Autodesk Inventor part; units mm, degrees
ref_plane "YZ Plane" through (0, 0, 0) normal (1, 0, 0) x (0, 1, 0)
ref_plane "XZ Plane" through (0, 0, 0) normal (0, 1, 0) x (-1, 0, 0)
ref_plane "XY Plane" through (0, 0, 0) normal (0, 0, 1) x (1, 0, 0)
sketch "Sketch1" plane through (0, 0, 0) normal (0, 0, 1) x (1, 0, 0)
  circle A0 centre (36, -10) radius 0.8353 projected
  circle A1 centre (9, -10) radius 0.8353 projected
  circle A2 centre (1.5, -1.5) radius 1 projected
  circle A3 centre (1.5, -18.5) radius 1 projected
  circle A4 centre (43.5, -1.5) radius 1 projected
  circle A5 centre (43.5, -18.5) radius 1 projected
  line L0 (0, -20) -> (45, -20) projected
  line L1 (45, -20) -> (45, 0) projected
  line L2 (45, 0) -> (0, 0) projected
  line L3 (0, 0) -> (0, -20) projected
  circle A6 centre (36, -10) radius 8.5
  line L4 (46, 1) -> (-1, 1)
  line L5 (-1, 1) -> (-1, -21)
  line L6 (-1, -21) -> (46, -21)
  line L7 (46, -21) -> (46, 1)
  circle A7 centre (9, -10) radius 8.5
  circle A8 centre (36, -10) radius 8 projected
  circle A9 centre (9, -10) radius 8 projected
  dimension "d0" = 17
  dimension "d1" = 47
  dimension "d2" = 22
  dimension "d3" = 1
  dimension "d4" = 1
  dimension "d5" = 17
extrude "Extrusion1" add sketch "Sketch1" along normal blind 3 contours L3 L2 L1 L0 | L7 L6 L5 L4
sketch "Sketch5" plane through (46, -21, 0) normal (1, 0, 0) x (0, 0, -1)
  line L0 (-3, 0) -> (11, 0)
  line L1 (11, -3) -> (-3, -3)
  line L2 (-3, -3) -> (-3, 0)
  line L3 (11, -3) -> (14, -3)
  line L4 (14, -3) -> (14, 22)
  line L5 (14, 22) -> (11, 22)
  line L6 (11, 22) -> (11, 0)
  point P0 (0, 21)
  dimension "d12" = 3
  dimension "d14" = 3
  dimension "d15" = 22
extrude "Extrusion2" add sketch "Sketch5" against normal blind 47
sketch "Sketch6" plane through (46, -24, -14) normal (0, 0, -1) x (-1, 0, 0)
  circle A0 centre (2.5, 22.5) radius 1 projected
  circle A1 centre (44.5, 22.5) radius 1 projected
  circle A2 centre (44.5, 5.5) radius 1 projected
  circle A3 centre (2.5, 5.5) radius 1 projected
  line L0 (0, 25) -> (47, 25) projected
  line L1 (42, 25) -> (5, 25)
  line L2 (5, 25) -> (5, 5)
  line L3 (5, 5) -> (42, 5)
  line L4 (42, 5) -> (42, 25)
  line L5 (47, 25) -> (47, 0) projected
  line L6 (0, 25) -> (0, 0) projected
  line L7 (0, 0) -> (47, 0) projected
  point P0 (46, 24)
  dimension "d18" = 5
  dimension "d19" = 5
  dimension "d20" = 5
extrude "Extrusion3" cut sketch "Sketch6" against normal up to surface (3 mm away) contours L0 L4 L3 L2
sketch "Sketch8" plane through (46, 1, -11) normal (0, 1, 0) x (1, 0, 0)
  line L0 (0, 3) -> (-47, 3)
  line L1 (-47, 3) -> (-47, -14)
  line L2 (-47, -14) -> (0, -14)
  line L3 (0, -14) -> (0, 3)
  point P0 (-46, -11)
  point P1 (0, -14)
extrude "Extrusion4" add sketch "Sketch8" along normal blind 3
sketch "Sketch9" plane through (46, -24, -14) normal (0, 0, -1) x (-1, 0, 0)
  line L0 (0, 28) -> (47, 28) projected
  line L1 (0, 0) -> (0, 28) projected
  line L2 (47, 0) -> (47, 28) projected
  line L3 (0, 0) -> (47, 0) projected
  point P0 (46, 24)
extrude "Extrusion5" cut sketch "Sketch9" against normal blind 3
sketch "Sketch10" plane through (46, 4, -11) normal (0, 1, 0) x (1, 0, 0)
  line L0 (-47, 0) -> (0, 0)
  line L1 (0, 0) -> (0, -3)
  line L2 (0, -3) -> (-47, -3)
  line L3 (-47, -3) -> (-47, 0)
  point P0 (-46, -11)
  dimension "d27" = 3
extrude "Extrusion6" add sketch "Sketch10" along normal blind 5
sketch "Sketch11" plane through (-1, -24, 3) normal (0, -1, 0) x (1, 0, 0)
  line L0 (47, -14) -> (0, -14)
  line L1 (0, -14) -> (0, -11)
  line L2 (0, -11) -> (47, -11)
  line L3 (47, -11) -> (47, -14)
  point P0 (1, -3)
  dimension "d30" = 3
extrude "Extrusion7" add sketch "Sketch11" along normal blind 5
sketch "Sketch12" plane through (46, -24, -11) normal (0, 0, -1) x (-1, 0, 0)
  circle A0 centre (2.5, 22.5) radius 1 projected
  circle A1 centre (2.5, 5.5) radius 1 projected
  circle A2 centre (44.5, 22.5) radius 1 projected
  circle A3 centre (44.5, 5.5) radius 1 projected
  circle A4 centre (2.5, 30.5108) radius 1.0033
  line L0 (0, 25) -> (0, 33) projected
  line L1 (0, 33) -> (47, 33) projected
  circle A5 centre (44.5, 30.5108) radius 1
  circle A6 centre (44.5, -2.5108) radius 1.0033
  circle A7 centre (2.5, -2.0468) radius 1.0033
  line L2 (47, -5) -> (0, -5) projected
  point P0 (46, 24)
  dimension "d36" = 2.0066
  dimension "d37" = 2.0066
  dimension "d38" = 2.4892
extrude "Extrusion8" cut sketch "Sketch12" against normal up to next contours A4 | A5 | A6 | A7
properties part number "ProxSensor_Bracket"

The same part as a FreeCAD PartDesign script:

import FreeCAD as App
import Part
import Sketcher

V = App.Vector


def add_polygon(sketch, points):
    """Adds a closed chain of lines whose ends are joined by coincident constraints."""
    first, n = sketch.GeometryCount, len(points)
    for a, b in zip(points, points[1:] + points[:1]):
        sketch.addGeometry(Part.LineSegment(App.Vector(*a, 0), App.Vector(*b, 0)), False)
    for i in range(n):
        sketch.addConstraint(Sketcher.Constraint("Coincident", first + i, 2, first + (i + 1) % n, 1))

doc = App.newDocument("Part")
params = doc.addObject("Spreadsheet::Sheet", "Params")
for row, (alias, value) in enumerate([
    ("sketch1_diameter", "2 mm"),
    ("sketch1_diameter2", "17 mm"),
    ("sketch1_width", "47 mm"),
    ("sketch1_height", "22 mm"),
    ("pad1_length", "3 mm"),
    ("sketch2_width", "3 mm"),
    ("sketch2_width2", "22 mm"),
    ("sketch2_height", "14 mm"),
    ("pad2_length", "47 mm"),
    ("sketch3_width", "37 mm"),
    ("sketch3_height", "20 mm"),
    ("pocket1_length", "3 mm"),
    ("sketch4_width", "47 mm"),
    ("sketch4_height", "17 mm"),
    ("pad3_length", "3 mm"),
    ("sketch5_width", "47 mm"),
    ("sketch5_height", "28 mm"),
    ("pocket2_length", "3 mm"),
    ("sketch6_height", "3 mm"),
    ("sketch6_width", "47 mm"),
    ("pad4_length", "5 mm"),
    ("sketch7_height", "3 mm"),
    ("sketch7_width", "47 mm"),
    ("pad5_length", "5 mm"),
    ("sketch8_diameter", "2 mm"),
], start=1):
    params.set(f"A{row}", alias)
    params.set(f"B{row}", "=" + value)
    params.setAlias(f"B{row}", alias)

body = doc.addObject("PartDesign::Body", "Body")

# Sketch on XY plane
sketch1 = body.newObject("Sketcher::SketchObject", "Sketch")
sketch1.AttachmentSupport = (doc.getObject("XY_Plane"), [""])
sketch1.MapMode = "FlatFace"
add_polygon(sketch1, [(46, -21), (46, 1), (-1, 1), (-1, -21)])  # lines 0-3
sketch1.addGeometry(Part.Circle(V(1.5, -18.5, 0), V(0, 0, 1), 1), False)  # 4
sketch1.addGeometry(Part.Circle(V(43.5, -18.5, 0), V(0, 0, 1), 1), False)  # 5
sketch1.addGeometry(Part.Circle(V(9, -10, 0), V(0, 0, 1), 8.5), False)  # 6
sketch1.addGeometry(Part.Circle(V(1.5, -1.5, 0), V(0, 0, 1), 1), False)  # 7
sketch1.addGeometry(Part.Circle(V(36, -10, 0), V(0, 0, 1), 8.5), False)  # 8
sketch1.addGeometry(Part.Circle(V(43.5, -1.5, 0), V(0, 0, 1), 1), False)  # 9
sketch1.addConstraint([
    Sketcher.Constraint("Vertical", 0),
    Sketcher.Constraint("Horizontal", 1),
    Sketcher.Constraint("Vertical", 2),
    Sketcher.Constraint("Horizontal", 3),
    Sketcher.Constraint("Equal", 4, 5),
    Sketcher.Constraint("Equal", 5, 7),
    Sketcher.Constraint("Equal", 6, 8),
    Sketcher.Constraint("Equal", 7, 9),
    Sketcher.Constraint("Horizontal", 4, 3, 5, 3),
    Sketcher.Constraint("Horizontal", 6, 3, 8, 3),
    Sketcher.Constraint("Horizontal", 7, 3, 9, 3),
    Sketcher.Constraint("Vertical", 4, 3, 7, 3),
    Sketcher.Constraint("Vertical", 5, 3, 9, 3),
    Sketcher.Constraint("Diameter", 4, 2.0),
    Sketcher.Constraint("Diameter", 6, 17.0),
    Sketcher.Constraint("DistanceX", 1, 2, 1, 1, 47.0),
    Sketcher.Constraint("DistanceY", 0, 1, 0, 2, 22.0),
    Sketcher.Constraint("DistanceY", -1, 1, 0, 2, 1.0),
    Sketcher.Constraint("DistanceX", 1, 2, -1, 1, 1.0),
    Sketcher.Constraint("DistanceY", 4, 3, 7, 3, 17.0),
    Sketcher.Constraint("DistanceX", -1, 1, 6, 3, 9.0),
    Sketcher.Constraint("DistanceY", 6, 3, -1, 1, 10.0),
    Sketcher.Constraint("DistanceX", -1, 1, 8, 3, 36.0),
    Sketcher.Constraint("DistanceX", 4, 3, 5, 3, 42.0),
    Sketcher.Constraint("DistanceX", -1, 1, 4, 3, 1.5),
    Sketcher.Constraint("DistanceY", 4, 3, -1, 1, 18.5),
])
sketch1.setExpression("Constraints[17]", "Params.sketch1_diameter")
sketch1.setExpression("Constraints[18]", "Params.sketch1_diameter2")
sketch1.setExpression("Constraints[19]", "Params.sketch1_width")
sketch1.setExpression("Constraints[20]", "Params.sketch1_height")
pad1 = body.newObject("PartDesign::Pad", "Pad")
pad1.Profile = sketch1
pad1.setExpression("Length", "Params.pad1_length")

# Sketch on YZ plane
sketch2 = body.newObject("Sketcher::SketchObject", "Sketch001")
sketch2.AttachmentSupport = (doc.getObject("YZ_Plane"), [""])
sketch2.MapMode = "FlatFace"
sketch2.AttachmentOffset = App.Placement(V(0, 0, 46), App.Rotation())
add_polygon(sketch2, [(-21, -11), (-21, 3), (-24, 3), (-24, -14), (1, -14), (1, -11)])  # lines 0-5
sketch2.addConstraint([
    Sketcher.Constraint("Vertical", 0),
    Sketcher.Constraint("Horizontal", 1),
    Sketcher.Constraint("Vertical", 2),
    Sketcher.Constraint("Horizontal", 3),
    Sketcher.Constraint("Vertical", 4),
    Sketcher.Constraint("Horizontal", 5),
    Sketcher.Constraint("Equal", 1, 4),
    Sketcher.Constraint("DistanceX", 1, 2, 1, 1, 3.0),
    Sketcher.Constraint("DistanceX", 5, 2, 5, 1, 22.0),
    Sketcher.Constraint("DistanceY", -1, 1, 0, 2, 3.0),
    Sketcher.Constraint("DistanceY", 0, 1, 0, 2, 14.0),
    Sketcher.Constraint("DistanceX", 0, 2, -1, 1, 21.0),
])
sketch2.setExpression("Constraints[13]", "Params.sketch2_width")
sketch2.setExpression("Constraints[14]", "Params.sketch2_width2")
sketch2.setExpression("Constraints[16]", "Params.sketch2_height")
pad2 = body.newObject("PartDesign::Pad", "Pad001")
pad2.Profile = sketch2
pad2.setExpression("Length", "Params.pad2_length")
pad2.Reversed = True

# Sketch on XY plane
sketch3 = body.newObject("Sketcher::SketchObject", "Sketch002")
sketch3.AttachmentSupport = (doc.getObject("XY_Plane"), [""])
sketch3.MapMode = "FlatFace"
sketch3.AttachmentOffset = App.Placement(V(0, 0, -14), App.Rotation())
add_polygon(sketch3, [(4, 1), (41, 1), (41, -19), (4, -19)])  # lines 0-3
sketch3.addConstraint([
    Sketcher.Constraint("Horizontal", 0),
    Sketcher.Constraint("Vertical", 1),
    Sketcher.Constraint("Horizontal", 2),
    Sketcher.Constraint("Vertical", 3),
    Sketcher.Constraint("DistanceX", 0, 1, 0, 2, 37.0),
    Sketcher.Constraint("DistanceY", 1, 2, 1, 1, 20.0),
    Sketcher.Constraint("DistanceX", -1, 1, 0, 2, 41.0),
    Sketcher.Constraint("DistanceY", -1, 1, 0, 2, 1.0),
])
sketch3.setExpression("Constraints[8]", "Params.sketch3_width")
sketch3.setExpression("Constraints[9]", "Params.sketch3_height")
pocket1 = body.newObject("PartDesign::Pocket", "Pocket")
pocket1.Profile = sketch3
pocket1.setExpression("Length", "Params.pocket1_length")
pocket1.Reversed = True

# Sketch on XZ plane
sketch4 = body.newObject("Sketcher::SketchObject", "Sketch003")
sketch4.AttachmentSupport = (doc.getObject("XZ_Plane"), [""])
sketch4.MapMode = "FlatFace"
sketch4.AttachmentOffset = App.Placement(V(0, 0, -1), App.Rotation())
add_polygon(sketch4, [(46, 3), (46, -14), (-1, -14), (-1, 3)])  # lines 0-3
sketch4.addConstraint([
    Sketcher.Constraint("Vertical", 0),
    Sketcher.Constraint("Horizontal", 1),
    Sketcher.Constraint("Vertical", 2),
    Sketcher.Constraint("Horizontal", 3),
    Sketcher.Constraint("DistanceX", 1, 2, 1, 1, 47.0),
    Sketcher.Constraint("DistanceY", 0, 2, 0, 1, 17.0),
    Sketcher.Constraint("DistanceX", -1, 1, 0, 2, 46.0),
    Sketcher.Constraint("DistanceY", 0, 2, -1, 1, 14.0),
])
sketch4.setExpression("Constraints[8]", "Params.sketch4_width")
sketch4.setExpression("Constraints[9]", "Params.sketch4_height")
pad3 = body.newObject("PartDesign::Pad", "Pad002")
pad3.Profile = sketch4
pad3.setExpression("Length", "Params.pad3_length")
pad3.Reversed = True

# Sketch on XY plane
sketch5 = body.newObject("Sketcher::SketchObject", "Sketch004")
sketch5.AttachmentSupport = (doc.getObject("XY_Plane"), [""])
sketch5.MapMode = "FlatFace"
sketch5.AttachmentOffset = App.Placement(V(0, 0, -14), App.Rotation())
add_polygon(sketch5, [(-1, 4), (46, 4), (46, -24), (-1, -24)])  # lines 0-3
sketch5.addConstraint([
    Sketcher.Constraint("Horizontal", 0),
    Sketcher.Constraint("Vertical", 1),
    Sketcher.Constraint("Horizontal", 2),
    Sketcher.Constraint("Vertical", 3),
    Sketcher.Constraint("DistanceX", 0, 1, 0, 2, 47.0),
    Sketcher.Constraint("DistanceY", 1, 2, 1, 1, 28.0),
    Sketcher.Constraint("DistanceX", -1, 1, 0, 2, 46.0),
    Sketcher.Constraint("DistanceY", -1, 1, 0, 2, 4.0),
])
sketch5.setExpression("Constraints[8]", "Params.sketch5_width")
sketch5.setExpression("Constraints[9]", "Params.sketch5_height")
pocket2 = body.newObject("PartDesign::Pocket", "Pocket001")
pocket2.Profile = sketch5
pocket2.setExpression("Length", "Params.pocket2_length")
pocket2.Reversed = True

# Sketch on XZ plane
sketch6 = body.newObject("Sketcher::SketchObject", "Sketch005")
sketch6.AttachmentSupport = (doc.getObject("XZ_Plane"), [""])
sketch6.MapMode = "FlatFace"
sketch6.AttachmentOffset = App.Placement(V(0, 0, -4), App.Rotation())
add_polygon(sketch6, [(46, -11), (-1, -11), (-1, -8), (46, -8)])  # lines 0-3
sketch6.addConstraint([
    Sketcher.Constraint("Horizontal", 0),
    Sketcher.Constraint("Vertical", 1),
    Sketcher.Constraint("Horizontal", 2),
    Sketcher.Constraint("Vertical", 3),
    Sketcher.Constraint("DistanceY", 1, 1, 1, 2, 3.0),
    Sketcher.Constraint("DistanceX", 0, 2, 0, 1, 47.0),
    Sketcher.Constraint("DistanceX", 0, 2, -1, 1, 1.0),
    Sketcher.Constraint("DistanceY", 0, 2, -1, 1, 11.0),
])
sketch6.setExpression("Constraints[8]", "Params.sketch6_height")
sketch6.setExpression("Constraints[9]", "Params.sketch6_width")
pad4 = body.newObject("PartDesign::Pad", "Pad003")
pad4.Profile = sketch6
pad4.setExpression("Length", "Params.pad4_length")
pad4.Reversed = True

# Sketch on XZ plane
sketch7 = body.newObject("Sketcher::SketchObject", "Sketch006")
sketch7.AttachmentSupport = (doc.getObject("XZ_Plane"), [""])
sketch7.MapMode = "FlatFace"
sketch7.AttachmentOffset = App.Placement(V(0, 0, 24), App.Rotation())
add_polygon(sketch7, [(-1, -11), (46, -11), (46, -8), (-1, -8)])  # lines 0-3
sketch7.addConstraint([
    Sketcher.Constraint("Horizontal", 0),
    Sketcher.Constraint("Vertical", 1),
    Sketcher.Constraint("Horizontal", 2),
    Sketcher.Constraint("Vertical", 3),
    Sketcher.Constraint("DistanceY", 1, 1, 1, 2, 3.0),
    Sketcher.Constraint("DistanceX", 0, 1, 0, 2, 47.0),
    Sketcher.Constraint("DistanceX", -1, 1, 0, 2, 46.0),
    Sketcher.Constraint("DistanceY", 0, 2, -1, 1, 11.0),
])
sketch7.setExpression("Constraints[8]", "Params.sketch7_height")
sketch7.setExpression("Constraints[9]", "Params.sketch7_width")
pad5 = body.newObject("PartDesign::Pad", "Pad004")
pad5.Profile = sketch7
pad5.setExpression("Length", "Params.pad5_length")

# Sketch on XY plane
sketch8 = body.newObject("Sketcher::SketchObject", "Sketch007")
sketch8.AttachmentSupport = (doc.getObject("XY_Plane"), [""])
sketch8.MapMode = "FlatFace"
sketch8.AttachmentOffset = App.Placement(V(0, 0, -11), App.Rotation())
sketch8.addGeometry([
    Part.Circle(V(43.5, 6.5108, 0), V(0, 0, 1), 1.0033),
    Part.Circle(V(1.5, 6.5108, 0), V(0, 0, 1), 1),
    Part.Circle(V(1.5, -26.5108, 0), V(0, 0, 1), 1.0033),
    Part.Circle(V(43.5, -26.0468, 0), V(0, 0, 1), 1.0033),
], False)
sketch8.addConstraint([
    Sketcher.Constraint("Equal", 0, 2),
    Sketcher.Constraint("Equal", 2, 3),
    Sketcher.Constraint("Horizontal", 0, 3, 1, 3),
    Sketcher.Constraint("Vertical", 1, 3, 2, 3),
    Sketcher.Constraint("Vertical", 0, 3, 3, 3),
    Sketcher.Constraint("Diameter", 1, 2.0),
    Sketcher.Constraint("Diameter", 0, 2.0066),
    Sketcher.Constraint("DistanceX", 1, 3, 0, 3, 42.0),
    Sketcher.Constraint("DistanceX", -1, 1, 0, 3, 43.5),
    Sketcher.Constraint("DistanceY", 2, 3, 3, 3, 0.464),
    Sketcher.Constraint("DistanceY", -1, 1, 0, 3, 6.5108),
    Sketcher.Constraint("DistanceY", 2, 3, -1, 1, 26.5108),
])
sketch8.setExpression("Constraints[5]", "Params.sketch8_diameter")
pocket3 = body.newObject("PartDesign::Pocket", "Pocket002")
pocket3.Profile = sketch8
pocket3.Type = "UpToFirst"
pocket3.Reversed = True

doc.recompute()
